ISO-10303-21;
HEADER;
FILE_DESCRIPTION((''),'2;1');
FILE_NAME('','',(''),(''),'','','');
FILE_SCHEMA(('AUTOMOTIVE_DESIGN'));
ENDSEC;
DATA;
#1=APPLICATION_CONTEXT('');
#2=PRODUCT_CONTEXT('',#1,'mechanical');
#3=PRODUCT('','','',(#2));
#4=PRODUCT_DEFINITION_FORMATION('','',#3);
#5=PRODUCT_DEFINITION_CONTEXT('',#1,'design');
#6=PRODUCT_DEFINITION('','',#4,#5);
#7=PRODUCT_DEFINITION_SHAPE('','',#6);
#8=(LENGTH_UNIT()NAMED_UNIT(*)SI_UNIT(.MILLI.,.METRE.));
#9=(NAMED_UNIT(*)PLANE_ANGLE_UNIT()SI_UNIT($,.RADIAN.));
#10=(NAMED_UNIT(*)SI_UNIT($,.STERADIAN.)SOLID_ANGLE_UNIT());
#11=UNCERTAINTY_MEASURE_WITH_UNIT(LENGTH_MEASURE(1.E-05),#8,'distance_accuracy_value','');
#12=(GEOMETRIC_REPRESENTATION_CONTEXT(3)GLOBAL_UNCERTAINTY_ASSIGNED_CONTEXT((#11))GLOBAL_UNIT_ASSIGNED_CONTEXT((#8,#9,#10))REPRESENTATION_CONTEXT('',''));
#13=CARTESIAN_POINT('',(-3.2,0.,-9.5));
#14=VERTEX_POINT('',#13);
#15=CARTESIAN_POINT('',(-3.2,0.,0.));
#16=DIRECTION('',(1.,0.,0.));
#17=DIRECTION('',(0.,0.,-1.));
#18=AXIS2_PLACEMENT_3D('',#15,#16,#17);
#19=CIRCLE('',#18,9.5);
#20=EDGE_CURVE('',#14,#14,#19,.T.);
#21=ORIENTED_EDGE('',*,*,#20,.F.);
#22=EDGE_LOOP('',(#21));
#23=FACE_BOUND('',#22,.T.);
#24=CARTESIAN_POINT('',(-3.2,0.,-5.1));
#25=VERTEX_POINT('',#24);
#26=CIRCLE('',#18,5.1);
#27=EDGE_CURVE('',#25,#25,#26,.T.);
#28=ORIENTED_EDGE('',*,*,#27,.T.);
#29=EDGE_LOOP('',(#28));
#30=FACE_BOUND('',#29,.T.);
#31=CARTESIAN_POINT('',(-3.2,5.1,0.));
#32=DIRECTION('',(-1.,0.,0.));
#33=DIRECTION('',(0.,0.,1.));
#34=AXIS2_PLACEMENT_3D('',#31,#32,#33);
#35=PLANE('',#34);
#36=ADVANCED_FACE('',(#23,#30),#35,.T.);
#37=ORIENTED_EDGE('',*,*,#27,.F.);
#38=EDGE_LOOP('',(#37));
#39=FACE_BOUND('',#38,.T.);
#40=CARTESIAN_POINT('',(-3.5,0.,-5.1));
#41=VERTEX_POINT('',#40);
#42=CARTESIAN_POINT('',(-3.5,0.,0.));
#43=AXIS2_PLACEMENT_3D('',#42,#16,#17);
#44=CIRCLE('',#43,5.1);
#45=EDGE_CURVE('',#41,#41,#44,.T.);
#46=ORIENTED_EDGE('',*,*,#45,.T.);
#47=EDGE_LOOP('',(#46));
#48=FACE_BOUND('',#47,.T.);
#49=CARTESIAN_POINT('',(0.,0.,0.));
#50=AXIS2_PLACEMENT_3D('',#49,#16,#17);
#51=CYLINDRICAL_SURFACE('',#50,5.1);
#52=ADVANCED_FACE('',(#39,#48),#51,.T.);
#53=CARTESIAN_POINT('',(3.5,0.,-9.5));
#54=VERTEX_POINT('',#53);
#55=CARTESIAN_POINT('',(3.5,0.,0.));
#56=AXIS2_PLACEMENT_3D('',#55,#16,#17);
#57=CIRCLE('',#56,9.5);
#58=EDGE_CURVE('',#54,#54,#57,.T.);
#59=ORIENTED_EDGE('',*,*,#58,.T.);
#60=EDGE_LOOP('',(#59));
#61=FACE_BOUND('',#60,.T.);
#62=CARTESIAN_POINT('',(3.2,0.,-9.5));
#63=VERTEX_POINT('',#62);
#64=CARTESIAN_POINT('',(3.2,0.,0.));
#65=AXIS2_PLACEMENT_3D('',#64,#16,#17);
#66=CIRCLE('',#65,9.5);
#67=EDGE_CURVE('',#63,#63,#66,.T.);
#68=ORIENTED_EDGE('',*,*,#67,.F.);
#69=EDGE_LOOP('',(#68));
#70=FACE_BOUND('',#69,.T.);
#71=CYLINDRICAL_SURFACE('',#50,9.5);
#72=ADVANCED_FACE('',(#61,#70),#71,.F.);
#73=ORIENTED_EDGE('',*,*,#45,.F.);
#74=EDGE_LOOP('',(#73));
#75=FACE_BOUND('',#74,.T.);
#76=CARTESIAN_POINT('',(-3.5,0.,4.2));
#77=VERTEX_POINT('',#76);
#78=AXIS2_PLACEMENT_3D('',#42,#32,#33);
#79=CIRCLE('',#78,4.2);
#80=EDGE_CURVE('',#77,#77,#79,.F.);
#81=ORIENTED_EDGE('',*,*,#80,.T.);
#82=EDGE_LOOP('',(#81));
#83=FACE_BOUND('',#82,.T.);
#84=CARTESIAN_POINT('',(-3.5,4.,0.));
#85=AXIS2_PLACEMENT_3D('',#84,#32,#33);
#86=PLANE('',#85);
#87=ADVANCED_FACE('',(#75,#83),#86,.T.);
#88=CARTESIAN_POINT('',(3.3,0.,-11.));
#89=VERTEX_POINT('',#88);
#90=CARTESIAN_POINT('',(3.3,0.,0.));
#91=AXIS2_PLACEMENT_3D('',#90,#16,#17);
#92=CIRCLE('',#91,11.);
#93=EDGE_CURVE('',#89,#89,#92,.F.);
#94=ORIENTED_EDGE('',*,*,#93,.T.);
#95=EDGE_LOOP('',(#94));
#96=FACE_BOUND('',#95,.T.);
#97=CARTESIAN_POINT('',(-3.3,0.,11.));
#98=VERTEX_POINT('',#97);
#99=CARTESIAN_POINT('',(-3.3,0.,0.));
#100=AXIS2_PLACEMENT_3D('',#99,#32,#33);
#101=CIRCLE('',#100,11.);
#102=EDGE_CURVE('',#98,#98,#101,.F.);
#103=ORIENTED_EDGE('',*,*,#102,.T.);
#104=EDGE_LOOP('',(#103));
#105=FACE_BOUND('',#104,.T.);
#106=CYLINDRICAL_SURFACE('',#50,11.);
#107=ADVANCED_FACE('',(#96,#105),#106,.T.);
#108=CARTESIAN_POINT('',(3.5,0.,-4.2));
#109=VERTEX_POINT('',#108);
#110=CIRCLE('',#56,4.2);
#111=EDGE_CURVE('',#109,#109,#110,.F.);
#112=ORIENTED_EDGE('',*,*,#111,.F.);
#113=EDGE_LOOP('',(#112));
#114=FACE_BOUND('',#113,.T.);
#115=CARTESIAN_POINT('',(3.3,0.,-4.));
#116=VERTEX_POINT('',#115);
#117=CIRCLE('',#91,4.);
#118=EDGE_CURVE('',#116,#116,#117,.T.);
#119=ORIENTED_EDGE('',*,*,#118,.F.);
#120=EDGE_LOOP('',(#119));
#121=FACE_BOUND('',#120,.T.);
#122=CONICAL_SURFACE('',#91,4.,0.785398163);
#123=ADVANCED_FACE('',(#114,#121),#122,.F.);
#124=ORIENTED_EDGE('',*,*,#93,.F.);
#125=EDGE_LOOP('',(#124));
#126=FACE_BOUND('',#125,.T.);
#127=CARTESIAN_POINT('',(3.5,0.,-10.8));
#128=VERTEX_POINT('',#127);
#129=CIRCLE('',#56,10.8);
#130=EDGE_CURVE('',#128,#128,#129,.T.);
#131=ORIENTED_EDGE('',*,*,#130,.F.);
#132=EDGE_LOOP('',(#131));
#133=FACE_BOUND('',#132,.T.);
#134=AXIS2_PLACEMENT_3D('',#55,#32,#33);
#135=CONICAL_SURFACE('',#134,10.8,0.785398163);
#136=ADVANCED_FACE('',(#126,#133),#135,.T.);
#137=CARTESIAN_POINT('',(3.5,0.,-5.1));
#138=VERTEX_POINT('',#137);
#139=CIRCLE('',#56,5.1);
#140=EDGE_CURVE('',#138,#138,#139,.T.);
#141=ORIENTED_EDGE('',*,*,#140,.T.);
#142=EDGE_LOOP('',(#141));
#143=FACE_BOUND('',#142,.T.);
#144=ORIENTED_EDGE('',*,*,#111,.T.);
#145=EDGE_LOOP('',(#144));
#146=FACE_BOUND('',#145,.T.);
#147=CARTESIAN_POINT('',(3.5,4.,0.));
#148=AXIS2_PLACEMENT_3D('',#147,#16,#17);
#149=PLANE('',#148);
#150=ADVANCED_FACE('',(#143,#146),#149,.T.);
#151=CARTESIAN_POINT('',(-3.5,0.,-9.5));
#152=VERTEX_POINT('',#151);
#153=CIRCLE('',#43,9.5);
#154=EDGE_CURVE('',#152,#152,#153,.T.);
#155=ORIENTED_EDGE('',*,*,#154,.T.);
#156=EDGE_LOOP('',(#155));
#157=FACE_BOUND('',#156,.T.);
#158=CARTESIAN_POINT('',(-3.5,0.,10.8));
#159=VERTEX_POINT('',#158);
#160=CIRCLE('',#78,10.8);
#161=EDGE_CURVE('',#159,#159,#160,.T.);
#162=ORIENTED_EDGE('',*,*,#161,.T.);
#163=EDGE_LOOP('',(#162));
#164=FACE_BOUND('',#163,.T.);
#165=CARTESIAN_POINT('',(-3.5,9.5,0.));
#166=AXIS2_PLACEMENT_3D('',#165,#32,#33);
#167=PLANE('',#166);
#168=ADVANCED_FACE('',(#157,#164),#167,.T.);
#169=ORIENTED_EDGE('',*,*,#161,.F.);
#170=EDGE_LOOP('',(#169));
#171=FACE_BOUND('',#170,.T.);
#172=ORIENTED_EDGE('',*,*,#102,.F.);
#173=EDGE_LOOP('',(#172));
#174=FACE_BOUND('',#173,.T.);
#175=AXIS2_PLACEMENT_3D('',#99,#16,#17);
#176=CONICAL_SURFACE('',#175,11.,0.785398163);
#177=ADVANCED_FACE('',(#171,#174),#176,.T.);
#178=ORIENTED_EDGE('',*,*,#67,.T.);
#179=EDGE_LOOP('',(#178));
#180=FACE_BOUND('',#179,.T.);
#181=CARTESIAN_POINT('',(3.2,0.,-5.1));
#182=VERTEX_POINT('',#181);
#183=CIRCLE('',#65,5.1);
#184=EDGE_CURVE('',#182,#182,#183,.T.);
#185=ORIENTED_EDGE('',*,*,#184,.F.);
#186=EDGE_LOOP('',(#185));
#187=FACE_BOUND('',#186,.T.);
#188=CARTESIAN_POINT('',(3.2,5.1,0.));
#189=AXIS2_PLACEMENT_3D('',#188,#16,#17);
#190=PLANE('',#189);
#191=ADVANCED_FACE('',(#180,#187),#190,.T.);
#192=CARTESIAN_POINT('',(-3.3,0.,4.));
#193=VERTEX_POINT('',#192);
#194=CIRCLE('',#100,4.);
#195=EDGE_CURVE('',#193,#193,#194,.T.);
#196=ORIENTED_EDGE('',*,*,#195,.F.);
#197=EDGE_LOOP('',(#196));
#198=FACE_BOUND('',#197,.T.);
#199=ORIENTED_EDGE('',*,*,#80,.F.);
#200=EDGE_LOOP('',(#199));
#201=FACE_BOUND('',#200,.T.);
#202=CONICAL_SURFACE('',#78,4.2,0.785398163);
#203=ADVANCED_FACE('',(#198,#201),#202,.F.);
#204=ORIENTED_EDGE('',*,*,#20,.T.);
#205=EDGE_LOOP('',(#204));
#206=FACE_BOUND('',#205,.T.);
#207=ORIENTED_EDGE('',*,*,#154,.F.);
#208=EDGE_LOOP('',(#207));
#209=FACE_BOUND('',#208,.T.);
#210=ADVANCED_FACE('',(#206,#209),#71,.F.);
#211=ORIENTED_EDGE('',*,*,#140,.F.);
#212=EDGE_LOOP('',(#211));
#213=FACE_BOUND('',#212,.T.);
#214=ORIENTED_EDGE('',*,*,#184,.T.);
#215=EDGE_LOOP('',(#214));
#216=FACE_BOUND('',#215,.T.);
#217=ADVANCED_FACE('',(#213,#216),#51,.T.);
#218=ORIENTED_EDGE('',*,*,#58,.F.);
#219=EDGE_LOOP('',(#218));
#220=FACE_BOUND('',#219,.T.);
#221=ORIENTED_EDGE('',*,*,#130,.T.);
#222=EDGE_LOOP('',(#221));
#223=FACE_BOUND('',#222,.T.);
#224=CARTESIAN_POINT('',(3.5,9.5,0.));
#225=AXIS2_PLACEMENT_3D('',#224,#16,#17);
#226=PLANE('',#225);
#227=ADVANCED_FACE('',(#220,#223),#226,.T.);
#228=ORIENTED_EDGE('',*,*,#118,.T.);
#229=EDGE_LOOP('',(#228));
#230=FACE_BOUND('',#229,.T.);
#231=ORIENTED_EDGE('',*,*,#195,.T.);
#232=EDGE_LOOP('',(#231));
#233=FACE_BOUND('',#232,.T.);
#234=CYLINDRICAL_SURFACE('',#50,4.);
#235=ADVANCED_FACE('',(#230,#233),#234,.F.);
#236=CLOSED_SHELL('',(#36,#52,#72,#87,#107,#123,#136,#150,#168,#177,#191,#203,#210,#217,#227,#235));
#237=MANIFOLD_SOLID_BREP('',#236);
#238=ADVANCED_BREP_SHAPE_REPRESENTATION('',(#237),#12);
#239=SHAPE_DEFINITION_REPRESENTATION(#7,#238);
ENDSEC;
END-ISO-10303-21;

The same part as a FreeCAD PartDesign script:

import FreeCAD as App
import Part
import Sketcher
Q = App.Units.Quantity


def edges_at(feature, points):
    """Names of the edges that pass closest to the given points."""
    edges = feature.Shape.Edges
    near = lambda p: min(range(len(edges)), key=lambda i: edges[i].distToShape(Part.Vertex(*p))[0])
    return sorted({f"Edge{near(p) + 1}" for p in points})


def add_polygon(sketch, points):
    """Adds a closed chain of lines whose ends are joined by coincident constraints."""
    first, n = sketch.GeometryCount, len(points)
    for a, b in zip(points, points[1:] + points[:1]):
        sketch.addGeometry(Part.LineSegment(App.Vector(*a, 0), App.Vector(*b, 0)), False)
    for i in range(n):
        sketch.addConstraint(Sketcher.Constraint("Coincident", first + i, 2, first + (i + 1) % n, 1))

doc = App.newDocument("Part")
params = doc.addObject("Spreadsheet::Sheet", "Params")
for row, (alias, value) in enumerate([
    ("sketch1_width", "7 mm"),
    ("sketch1_width2", "0.3 mm"),
    ("sketch1_height", "1.1 mm"),
    ("sketch1_height2", "4.4 mm"),
    ("sketch1_height3", "1.5 mm"),
    ("revolution_angle", "360 deg"),
    ("chamfer_size", "0.2 mm"),
], start=1):
    params.set(f"A{row}", alias)
    params.set(f"B{row}", "=" + value)
    params.setAlias(f"B{row}", alias)

body = doc.addObject("PartDesign::Body", "Body")

sketch1 = doc.addObject("Sketcher::SketchObject", "Sketch")
body.addObject(sketch1)
sketch1.AttachmentSupport = (doc.XY_Plane, [""])
sketch1.MapMode = "FlatFace"
add_polygon(sketch1, [(-3.5, 4), (3.5, 4), (3.5, 5.1), (3.2, 5.1), (3.2, 9.5), (3.5, 9.5), (3.5, 11), (-3.5, 11), (-3.5, 9.5), (-3.2, 9.5), (-3.2, 5.1), (-3.5, 5.1)])
sketch1.addConstraint(Sketcher.Constraint("Horizontal", 0))
sketch1.addConstraint(Sketcher.Constraint("Vertical", 1))
sketch1.addConstraint(Sketcher.Constraint("Horizontal", 2))
sketch1.addConstraint(Sketcher.Constraint("Vertical", 3))
sketch1.addConstraint(Sketcher.Constraint("Horizontal", 4))
sketch1.addConstraint(Sketcher.Constraint("Vertical", 5))
sketch1.addConstraint(Sketcher.Constraint("Horizontal", 6))
sketch1.addConstraint(Sketcher.Constraint("Vertical", 7))
sketch1.addConstraint(Sketcher.Constraint("Horizontal", 8))
sketch1.addConstraint(Sketcher.Constraint("Vertical", 9))
sketch1.addConstraint(Sketcher.Constraint("Horizontal", 10))
sketch1.addConstraint(Sketcher.Constraint("Vertical", 11))
sketch1.addConstraint(Sketcher.Constraint("Symmetric", 4, 2, 7, 2, -2))
sketch1.addConstraint(Sketcher.Constraint("Symmetric", 2, 2, 9, 2, -2))
sketch1.addConstraint(Sketcher.Constraint("Vertical", 1, 2, 4, 2))
sketch1.addConstraint(Sketcher.Constraint("Vertical", 7, 2, 10, 2))
sketch1.addConstraint(Sketcher.Constraint("DistanceX", 0, 1, 0, 2, Q("7 mm")))
sketch1.addConstraint(Sketcher.Constraint("DistanceX", 2, 2, 2, 1, Q("0.3 mm")))
sketch1.addConstraint(Sketcher.Constraint("DistanceY", 1, 1, 1, 2, Q("1.1 mm")))
sketch1.addConstraint(Sketcher.Constraint("DistanceY", 3, 1, 3, 2, Q("4.4 mm")))
sketch1.addConstraint(Sketcher.Constraint("DistanceY", 5, 1, 5, 2, Q("1.5 mm")))
sketch1.addConstraint(Sketcher.Constraint("DistanceY", -1, 1, 0, 2, Q("4 mm")))
sketch1.setExpression("Constraints[28]", "Params.sketch1_width")
sketch1.setExpression("Constraints[29]", "Params.sketch1_width2")
sketch1.setExpression("Constraints[30]", "Params.sketch1_height")
sketch1.setExpression("Constraints[31]", "Params.sketch1_height2")
sketch1.setExpression("Constraints[32]", "Params.sketch1_height3")
revolution = doc.addObject("PartDesign::Revolution", "Revolution")
body.addObject(revolution)
revolution.Profile = sketch1
revolution.ReferenceAxis = (sketch1, ["H_Axis"])
revolution.setExpression("Angle", "Params.revolution_angle")
doc.recompute()

chamfer = doc.addObject("PartDesign::Chamfer", "Chamfer")
body.addObject(chamfer)
chamfer.Base = (revolution, edges_at(revolution, [
    (3.5, 0, 11),
    (-3.5, 0, 11),
    (-3.5, 0, 4),
    (3.5, 0, 4),
]))
chamfer.setExpression("Size", "Params.chamfer_size")

doc.recompute()
